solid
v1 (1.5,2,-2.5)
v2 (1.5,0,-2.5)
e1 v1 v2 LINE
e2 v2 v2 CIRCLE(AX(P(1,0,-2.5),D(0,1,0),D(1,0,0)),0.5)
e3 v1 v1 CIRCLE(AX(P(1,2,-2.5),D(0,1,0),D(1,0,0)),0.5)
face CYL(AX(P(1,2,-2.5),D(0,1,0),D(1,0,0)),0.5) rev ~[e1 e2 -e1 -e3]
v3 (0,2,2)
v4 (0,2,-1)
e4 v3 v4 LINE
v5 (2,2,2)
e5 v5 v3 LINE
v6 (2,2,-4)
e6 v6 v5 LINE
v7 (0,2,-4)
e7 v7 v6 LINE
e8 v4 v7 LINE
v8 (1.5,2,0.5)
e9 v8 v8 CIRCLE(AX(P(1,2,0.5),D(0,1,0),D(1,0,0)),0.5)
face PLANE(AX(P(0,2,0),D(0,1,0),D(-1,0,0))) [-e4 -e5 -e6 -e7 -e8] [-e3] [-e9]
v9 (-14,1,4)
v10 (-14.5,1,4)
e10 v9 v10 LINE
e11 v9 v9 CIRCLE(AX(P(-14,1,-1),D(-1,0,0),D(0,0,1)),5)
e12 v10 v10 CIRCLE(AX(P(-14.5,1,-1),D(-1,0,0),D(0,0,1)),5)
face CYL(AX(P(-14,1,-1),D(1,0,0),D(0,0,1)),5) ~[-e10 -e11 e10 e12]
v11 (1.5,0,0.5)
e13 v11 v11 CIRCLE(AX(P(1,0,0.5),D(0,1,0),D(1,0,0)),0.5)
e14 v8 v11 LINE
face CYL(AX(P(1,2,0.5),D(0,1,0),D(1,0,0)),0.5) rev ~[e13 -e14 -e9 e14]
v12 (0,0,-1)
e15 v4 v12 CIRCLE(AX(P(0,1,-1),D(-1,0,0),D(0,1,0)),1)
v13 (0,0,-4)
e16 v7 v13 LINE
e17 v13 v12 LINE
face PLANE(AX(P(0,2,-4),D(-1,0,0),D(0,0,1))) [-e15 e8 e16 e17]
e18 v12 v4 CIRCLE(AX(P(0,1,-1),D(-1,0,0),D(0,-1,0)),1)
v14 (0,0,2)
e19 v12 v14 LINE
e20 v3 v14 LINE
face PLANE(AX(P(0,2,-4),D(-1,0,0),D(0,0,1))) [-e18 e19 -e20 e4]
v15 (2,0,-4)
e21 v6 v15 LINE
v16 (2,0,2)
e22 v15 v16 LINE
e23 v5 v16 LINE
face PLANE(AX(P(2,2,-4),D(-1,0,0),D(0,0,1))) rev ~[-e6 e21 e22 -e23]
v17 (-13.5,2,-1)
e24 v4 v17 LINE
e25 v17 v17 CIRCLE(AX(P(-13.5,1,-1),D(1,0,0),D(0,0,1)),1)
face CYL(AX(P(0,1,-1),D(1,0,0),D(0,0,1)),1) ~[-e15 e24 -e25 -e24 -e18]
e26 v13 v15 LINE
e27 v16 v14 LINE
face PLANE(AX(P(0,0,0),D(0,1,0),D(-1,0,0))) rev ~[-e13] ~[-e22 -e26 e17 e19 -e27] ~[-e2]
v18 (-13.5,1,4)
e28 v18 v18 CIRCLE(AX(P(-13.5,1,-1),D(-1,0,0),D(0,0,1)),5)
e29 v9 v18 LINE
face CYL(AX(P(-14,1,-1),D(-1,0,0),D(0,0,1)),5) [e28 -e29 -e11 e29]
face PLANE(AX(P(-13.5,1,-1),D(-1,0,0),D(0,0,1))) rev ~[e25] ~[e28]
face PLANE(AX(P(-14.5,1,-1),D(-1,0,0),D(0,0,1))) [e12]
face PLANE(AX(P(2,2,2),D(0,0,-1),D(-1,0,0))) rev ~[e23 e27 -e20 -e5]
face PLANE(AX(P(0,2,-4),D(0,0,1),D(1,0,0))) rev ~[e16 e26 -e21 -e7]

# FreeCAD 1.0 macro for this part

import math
import FreeCAD as App
import Part
import Sketcher

V = App.Vector

doc = App.newDocument("Part")
params = doc.addObject("Spreadsheet::Sheet", "Params")
for row, (alias, value) in enumerate([
    ("sketch1_width", "20 mm"),
    ("sketch1_height", "2 mm"),
    ("pad1_length", "2 mm"),
    ("sketch2_width", "2 mm"),
    ("sketch2_height", "6 mm"),
    ("pad2_length", "2 mm"),
    ("sketch3_diameter", "1 mm"),
    ("pocket1_length", "2 mm"),
    ("sketch4_radius", "1 mm"),
    ("sketch4_height", "1 mm"),
    ("pocket2_length", "100 mm"),
    ("sketch5_diameter", "10 mm"),
    ("pad3_length", "1 mm"),
    ("sketch6_diameter", "10 mm"),
    ("pocket3_length", "5.5 mm"),
], start=1):
    params.set(f"A{row}", alias)
    params.set(f"B{row}", "=" + value)
    params.setAlias(f"B{row}", alias)

body = doc.addObject("PartDesign::Body", "Body")

# Sketch on XZ plane
sketch1 = doc.addObject("Sketcher::SketchObject", "Sketch")
body.addObject(sketch1)
sketch1.AttachmentSupport = (doc.XZ_Plane, [""])
sketch1.MapMode = "FlatFace"
sketch1.addGeometry([
    Part.LineSegment(V(-20, 0, 0), V(0, 0, 0)),
    Part.LineSegment(V(0, 0, 0), V(0, -2, 0)),
    Part.LineSegment(V(0, -2, 0), V(-20, -2, 0)),
    Part.LineSegment(V(-20, -2, 0), V(-20, 0, 0)),
], False)
sketch1.addConstraint([
    Sketcher.Constraint("Coincident", 0, 2, 1, 1),
    Sketcher.Constraint("Coincident", 1, 2, 2, 1),
    Sketcher.Constraint("Coincident", 2, 2, 3, 1),
    Sketcher.Constraint("Coincident", 3, 2, 0, 1),
    Sketcher.Constraint("Horizontal", 0),
    Sketcher.Constraint("Vertical", 1),
    Sketcher.Constraint("Horizontal", 2),
    Sketcher.Constraint("Vertical", 3),
    Sketcher.Constraint("Coincident", 0, 2, -1, 1),
    Sketcher.Constraint("DistanceX", 0, 1, 0, 2, 20.0),
    Sketcher.Constraint("DistanceY", 1, 2, 1, 1, 2.0),
])
sketch1.setExpression("Constraints[9]", "Params.sketch1_width")
sketch1.setExpression("Constraints[10]", "Params.sketch1_height")
pad1 = doc.addObject("PartDesign::Pad", "Pad")
body.addObject(pad1)
pad1.Profile = sketch1
pad1.setExpression("Length", "Params.pad1_length")
pad1.Reversed = True

# Sketch on XZ plane
sketch2 = doc.addObject("Sketcher::SketchObject", "Sketch001")
body.addObject(sketch2)
sketch2.AttachmentSupport = (doc.XZ_Plane, [""])
sketch2.MapMode = "FlatFace"
sketch2.AttachmentOffset = App.Placement(V(0, 0, -2), App.Rotation())
sketch2.addGeometry([
    Part.LineSegment(V(0, -4, 0), V(0, 2, 0)),
    Part.LineSegment(V(0, 2, 0), V(2, 2, 0)),
    Part.LineSegment(V(2, 2, 0), V(2, -4, 0)),
    Part.LineSegment(V(2, -4, 0), V(0, -4, 0)),
], False)
sketch2.addConstraint([
    Sketcher.Constraint("Coincident", 0, 2, 1, 1),
    Sketcher.Constraint("Coincident", 1, 2, 2, 1),
    Sketcher.Constraint("Coincident", 2, 2, 3, 1),
    Sketcher.Constraint("Coincident", 3, 2, 0, 1),
    Sketcher.Constraint("Vertical", 0),
    Sketcher.Constraint("Horizontal", 1),
    Sketcher.Constraint("Vertical", 2),
    Sketcher.Constraint("Horizontal", 3),
    Sketcher.Constraint("PointOnObject", 0, 2, -2),
    Sketcher.Constraint("DistanceX", 1, 1, 1, 2, 2.0),
    Sketcher.Constraint("DistanceY", 0, 1, 0, 2, 6.0),
    Sketcher.Constraint("DistanceY", -1, 1, 0, 2, 2.0),
])
sketch2.setExpression("Constraints[9]", "Params.sketch2_width")
sketch2.setExpression("Constraints[10]", "Params.sketch2_height")
pad2 = doc.addObject("PartDesign::Pad", "Pad001")
body.addObject(pad2)
pad2.Profile = sketch2
pad2.setExpression("Length", "Params.pad2_length")

# Sketch on XZ plane
sketch3 = doc.addObject("Sketcher::SketchObject", "Sketch002")
body.addObject(sketch3)
sketch3.AttachmentSupport = (doc.XZ_Plane, [""])
sketch3.MapMode = "FlatFace"
sketch3.AttachmentOffset = App.Placement(V(0, 0, -2), App.Rotation())
sketch3.addGeometry([
    Part.Circle(V(1, 0.5, 0), V(0, 0, 1), 0.5),
    Part.Circle(V(1, -2.5, 0), V(0, 0, 1), 0.5),
], False)
sketch3.addConstraint([
    Sketcher.Constraint("Equal", 0, 1),
    Sketcher.Constraint("Vertical", 0, 3, 1, 3),
    Sketcher.Constraint("Diameter", 0, 1.0),
    Sketcher.Constraint("DistanceX", -1, 1, 0, 3, 1.0),
    Sketcher.Constraint("DistanceY", 1, 3, 0, 3, 3.0),
    Sketcher.Constraint("DistanceY", -1, 1, 0, 3, 0.5),
])
sketch3.setExpression("Constraints[2]", "Params.sketch3_diameter")
pocket1 = doc.addObject("PartDesign::Pocket", "Pocket")
body.addObject(pocket1)
pocket1.Profile = sketch3
pocket1.setExpression("Length", "Params.pocket1_length")
pocket1.Reversed = True

# Sketch on YZ plane
sketch4 = doc.addObject("Sketcher::SketchObject", "Sketch003")
body.addObject(sketch4)
sketch4.AttachmentSupport = (doc.YZ_Plane, [""])
sketch4.MapMode = "FlatFace"
sketch4.addGeometry([
    Part.LineSegment(V(2, -1, 0), V(2, -2, 0)),  # 0
    Part.ArcOfCircle(Part.Circle(V(1, -1, 0), V(0, 0, 1), 1.4142), math.radians(-135), math.radians(-45)),  # 1
    Part.LineSegment(V(0, -2, 0), V(0, -1, 0)),  # 2
    Part.ArcOfCircle(Part.Circle(V(1, -1, 0), V(0, 0, 1), 1), math.radians(180), math.radians(360)),  # 3
    Part.LineSegment(V(2, 0, 0), V(2, -1, 0)),  # 4
    Part.ArcOfCircle(Part.Circle(V(1, -1, 0), V(0, 0, 1), 1), math.radians(0), math.radians(180)),  # 5
    Part.LineSegment(V(0, -1, 0), V(0, 0, 0)),  # 6
    Part.ArcOfCircle(Part.Circle(V(1, -1, 0), V(0, 0, 1), 1.4142), math.radians(45), math.radians(135)),  # 7
], False)
sketch4.addConstraint([
    Sketcher.Constraint("Coincident", 0, 2, 1, 2),
    Sketcher.Constraint("Coincident", 1, 1, 2, 1),
    Sketcher.Constraint("Tangent", 2, 2, 3, 1),
    Sketcher.Constraint("Tangent", 3, 2, 0, 1),
    Sketcher.Constraint("Tangent", 4, 2, 5, 1),
    Sketcher.Constraint("Tangent", 5, 2, 6, 1),
    Sketcher.Constraint("Coincident", 6, 2, 7, 2),
    Sketcher.Constraint("Coincident", 7, 1, 4, 1),
    Sketcher.Constraint("Vertical", 0),
    Sketcher.Constraint("Vertical", 2),
    Sketcher.Constraint("Vertical", 4),
    Sketcher.Constraint("Vertical", 6),
    Sketcher.Constraint("Coincident", 6, 2, -1, 1),
    Sketcher.Constraint("Coincident", 3, 3, 1, 3),
    Sketcher.Constraint("Coincident", 5, 3, 1, 3),
    Sketcher.Constraint("Coincident", 7, 3, 1, 3),
    Sketcher.Constraint("Equal", 3, 5),
    Sketcher.Constraint("Equal", 1, 7),
    Sketcher.Constraint("Radius", 3, 1.0),
    Sketcher.Constraint("DistanceY", 0, 2, 0, 1, 1.0),
])
sketch4.setExpression("Constraints[18]", "Params.sketch4_radius")
sketch4.setExpression("Constraints[19]", "Params.sketch4_height")
pocket2 = doc.addObject("PartDesign::Pocket", "Pocket001")
body.addObject(pocket2)
pocket2.Profile = sketch4
pocket2.setExpression("Length", "Params.pocket2_length")

# Sketch on YZ plane
sketch5 = doc.addObject("Sketcher::SketchObject", "Sketch004")
body.addObject(sketch5)
sketch5.AttachmentSupport = (doc.YZ_Plane, [""])
sketch5.MapMode = "FlatFace"
sketch5.AttachmentOffset = App.Placement(V(0, 0, -14), App.Rotation())
sketch5.addGeometry(Part.Circle(V(1, -1, 0), V(0, 0, 1), 5), False)
sketch5.addConstraint([
    Sketcher.Constraint("Diameter", 0, 10.0),
    Sketcher.Constraint("DistanceX", -1, 1, 0, 3, 1.0),
    Sketcher.Constraint("DistanceY", 0, 3, -1, 1, 1.0),
])
sketch5.setExpression("Constraints[0]", "Params.sketch5_diameter")
pad3 = doc.addObject("PartDesign::Pad", "Pad002")
body.addObject(pad3)
pad3.Profile = sketch5
pad3.setExpression("Length", "Params.pad3_length")
pad3.Midplane = True

# Sketch on YZ plane
sketch6 = doc.addObject("Sketcher::SketchObject", "Sketch005")
body.addObject(sketch6)
sketch6.AttachmentSupport = (doc.YZ_Plane, [""])
sketch6.MapMode = "FlatFace"
sketch6.AttachmentOffset = App.Placement(V(0, 0, -20), App.Rotation())
sketch6.addGeometry(Part.Circle(V(1, -1, 0), V(0, 0, 1), 5), False)
sketch6.addConstraint([
    Sketcher.Constraint("Diameter", 0, 10.0),
    Sketcher.Constraint("DistanceX", -1, 1, 0, 3, 1.0),
    Sketcher.Constraint("DistanceY", 0, 3, -1, 1, 1.0),
])
sketch6.setExpression("Constraints[0]", "Params.sketch6_diameter")
pocket3 = doc.addObject("PartDesign::Pocket", "Pocket002")
body.addObject(pocket3)
pocket3.Profile = sketch6
pocket3.setExpression("Length", "Params.pocket3_length")
pocket3.Reversed = True

doc.recompute()
